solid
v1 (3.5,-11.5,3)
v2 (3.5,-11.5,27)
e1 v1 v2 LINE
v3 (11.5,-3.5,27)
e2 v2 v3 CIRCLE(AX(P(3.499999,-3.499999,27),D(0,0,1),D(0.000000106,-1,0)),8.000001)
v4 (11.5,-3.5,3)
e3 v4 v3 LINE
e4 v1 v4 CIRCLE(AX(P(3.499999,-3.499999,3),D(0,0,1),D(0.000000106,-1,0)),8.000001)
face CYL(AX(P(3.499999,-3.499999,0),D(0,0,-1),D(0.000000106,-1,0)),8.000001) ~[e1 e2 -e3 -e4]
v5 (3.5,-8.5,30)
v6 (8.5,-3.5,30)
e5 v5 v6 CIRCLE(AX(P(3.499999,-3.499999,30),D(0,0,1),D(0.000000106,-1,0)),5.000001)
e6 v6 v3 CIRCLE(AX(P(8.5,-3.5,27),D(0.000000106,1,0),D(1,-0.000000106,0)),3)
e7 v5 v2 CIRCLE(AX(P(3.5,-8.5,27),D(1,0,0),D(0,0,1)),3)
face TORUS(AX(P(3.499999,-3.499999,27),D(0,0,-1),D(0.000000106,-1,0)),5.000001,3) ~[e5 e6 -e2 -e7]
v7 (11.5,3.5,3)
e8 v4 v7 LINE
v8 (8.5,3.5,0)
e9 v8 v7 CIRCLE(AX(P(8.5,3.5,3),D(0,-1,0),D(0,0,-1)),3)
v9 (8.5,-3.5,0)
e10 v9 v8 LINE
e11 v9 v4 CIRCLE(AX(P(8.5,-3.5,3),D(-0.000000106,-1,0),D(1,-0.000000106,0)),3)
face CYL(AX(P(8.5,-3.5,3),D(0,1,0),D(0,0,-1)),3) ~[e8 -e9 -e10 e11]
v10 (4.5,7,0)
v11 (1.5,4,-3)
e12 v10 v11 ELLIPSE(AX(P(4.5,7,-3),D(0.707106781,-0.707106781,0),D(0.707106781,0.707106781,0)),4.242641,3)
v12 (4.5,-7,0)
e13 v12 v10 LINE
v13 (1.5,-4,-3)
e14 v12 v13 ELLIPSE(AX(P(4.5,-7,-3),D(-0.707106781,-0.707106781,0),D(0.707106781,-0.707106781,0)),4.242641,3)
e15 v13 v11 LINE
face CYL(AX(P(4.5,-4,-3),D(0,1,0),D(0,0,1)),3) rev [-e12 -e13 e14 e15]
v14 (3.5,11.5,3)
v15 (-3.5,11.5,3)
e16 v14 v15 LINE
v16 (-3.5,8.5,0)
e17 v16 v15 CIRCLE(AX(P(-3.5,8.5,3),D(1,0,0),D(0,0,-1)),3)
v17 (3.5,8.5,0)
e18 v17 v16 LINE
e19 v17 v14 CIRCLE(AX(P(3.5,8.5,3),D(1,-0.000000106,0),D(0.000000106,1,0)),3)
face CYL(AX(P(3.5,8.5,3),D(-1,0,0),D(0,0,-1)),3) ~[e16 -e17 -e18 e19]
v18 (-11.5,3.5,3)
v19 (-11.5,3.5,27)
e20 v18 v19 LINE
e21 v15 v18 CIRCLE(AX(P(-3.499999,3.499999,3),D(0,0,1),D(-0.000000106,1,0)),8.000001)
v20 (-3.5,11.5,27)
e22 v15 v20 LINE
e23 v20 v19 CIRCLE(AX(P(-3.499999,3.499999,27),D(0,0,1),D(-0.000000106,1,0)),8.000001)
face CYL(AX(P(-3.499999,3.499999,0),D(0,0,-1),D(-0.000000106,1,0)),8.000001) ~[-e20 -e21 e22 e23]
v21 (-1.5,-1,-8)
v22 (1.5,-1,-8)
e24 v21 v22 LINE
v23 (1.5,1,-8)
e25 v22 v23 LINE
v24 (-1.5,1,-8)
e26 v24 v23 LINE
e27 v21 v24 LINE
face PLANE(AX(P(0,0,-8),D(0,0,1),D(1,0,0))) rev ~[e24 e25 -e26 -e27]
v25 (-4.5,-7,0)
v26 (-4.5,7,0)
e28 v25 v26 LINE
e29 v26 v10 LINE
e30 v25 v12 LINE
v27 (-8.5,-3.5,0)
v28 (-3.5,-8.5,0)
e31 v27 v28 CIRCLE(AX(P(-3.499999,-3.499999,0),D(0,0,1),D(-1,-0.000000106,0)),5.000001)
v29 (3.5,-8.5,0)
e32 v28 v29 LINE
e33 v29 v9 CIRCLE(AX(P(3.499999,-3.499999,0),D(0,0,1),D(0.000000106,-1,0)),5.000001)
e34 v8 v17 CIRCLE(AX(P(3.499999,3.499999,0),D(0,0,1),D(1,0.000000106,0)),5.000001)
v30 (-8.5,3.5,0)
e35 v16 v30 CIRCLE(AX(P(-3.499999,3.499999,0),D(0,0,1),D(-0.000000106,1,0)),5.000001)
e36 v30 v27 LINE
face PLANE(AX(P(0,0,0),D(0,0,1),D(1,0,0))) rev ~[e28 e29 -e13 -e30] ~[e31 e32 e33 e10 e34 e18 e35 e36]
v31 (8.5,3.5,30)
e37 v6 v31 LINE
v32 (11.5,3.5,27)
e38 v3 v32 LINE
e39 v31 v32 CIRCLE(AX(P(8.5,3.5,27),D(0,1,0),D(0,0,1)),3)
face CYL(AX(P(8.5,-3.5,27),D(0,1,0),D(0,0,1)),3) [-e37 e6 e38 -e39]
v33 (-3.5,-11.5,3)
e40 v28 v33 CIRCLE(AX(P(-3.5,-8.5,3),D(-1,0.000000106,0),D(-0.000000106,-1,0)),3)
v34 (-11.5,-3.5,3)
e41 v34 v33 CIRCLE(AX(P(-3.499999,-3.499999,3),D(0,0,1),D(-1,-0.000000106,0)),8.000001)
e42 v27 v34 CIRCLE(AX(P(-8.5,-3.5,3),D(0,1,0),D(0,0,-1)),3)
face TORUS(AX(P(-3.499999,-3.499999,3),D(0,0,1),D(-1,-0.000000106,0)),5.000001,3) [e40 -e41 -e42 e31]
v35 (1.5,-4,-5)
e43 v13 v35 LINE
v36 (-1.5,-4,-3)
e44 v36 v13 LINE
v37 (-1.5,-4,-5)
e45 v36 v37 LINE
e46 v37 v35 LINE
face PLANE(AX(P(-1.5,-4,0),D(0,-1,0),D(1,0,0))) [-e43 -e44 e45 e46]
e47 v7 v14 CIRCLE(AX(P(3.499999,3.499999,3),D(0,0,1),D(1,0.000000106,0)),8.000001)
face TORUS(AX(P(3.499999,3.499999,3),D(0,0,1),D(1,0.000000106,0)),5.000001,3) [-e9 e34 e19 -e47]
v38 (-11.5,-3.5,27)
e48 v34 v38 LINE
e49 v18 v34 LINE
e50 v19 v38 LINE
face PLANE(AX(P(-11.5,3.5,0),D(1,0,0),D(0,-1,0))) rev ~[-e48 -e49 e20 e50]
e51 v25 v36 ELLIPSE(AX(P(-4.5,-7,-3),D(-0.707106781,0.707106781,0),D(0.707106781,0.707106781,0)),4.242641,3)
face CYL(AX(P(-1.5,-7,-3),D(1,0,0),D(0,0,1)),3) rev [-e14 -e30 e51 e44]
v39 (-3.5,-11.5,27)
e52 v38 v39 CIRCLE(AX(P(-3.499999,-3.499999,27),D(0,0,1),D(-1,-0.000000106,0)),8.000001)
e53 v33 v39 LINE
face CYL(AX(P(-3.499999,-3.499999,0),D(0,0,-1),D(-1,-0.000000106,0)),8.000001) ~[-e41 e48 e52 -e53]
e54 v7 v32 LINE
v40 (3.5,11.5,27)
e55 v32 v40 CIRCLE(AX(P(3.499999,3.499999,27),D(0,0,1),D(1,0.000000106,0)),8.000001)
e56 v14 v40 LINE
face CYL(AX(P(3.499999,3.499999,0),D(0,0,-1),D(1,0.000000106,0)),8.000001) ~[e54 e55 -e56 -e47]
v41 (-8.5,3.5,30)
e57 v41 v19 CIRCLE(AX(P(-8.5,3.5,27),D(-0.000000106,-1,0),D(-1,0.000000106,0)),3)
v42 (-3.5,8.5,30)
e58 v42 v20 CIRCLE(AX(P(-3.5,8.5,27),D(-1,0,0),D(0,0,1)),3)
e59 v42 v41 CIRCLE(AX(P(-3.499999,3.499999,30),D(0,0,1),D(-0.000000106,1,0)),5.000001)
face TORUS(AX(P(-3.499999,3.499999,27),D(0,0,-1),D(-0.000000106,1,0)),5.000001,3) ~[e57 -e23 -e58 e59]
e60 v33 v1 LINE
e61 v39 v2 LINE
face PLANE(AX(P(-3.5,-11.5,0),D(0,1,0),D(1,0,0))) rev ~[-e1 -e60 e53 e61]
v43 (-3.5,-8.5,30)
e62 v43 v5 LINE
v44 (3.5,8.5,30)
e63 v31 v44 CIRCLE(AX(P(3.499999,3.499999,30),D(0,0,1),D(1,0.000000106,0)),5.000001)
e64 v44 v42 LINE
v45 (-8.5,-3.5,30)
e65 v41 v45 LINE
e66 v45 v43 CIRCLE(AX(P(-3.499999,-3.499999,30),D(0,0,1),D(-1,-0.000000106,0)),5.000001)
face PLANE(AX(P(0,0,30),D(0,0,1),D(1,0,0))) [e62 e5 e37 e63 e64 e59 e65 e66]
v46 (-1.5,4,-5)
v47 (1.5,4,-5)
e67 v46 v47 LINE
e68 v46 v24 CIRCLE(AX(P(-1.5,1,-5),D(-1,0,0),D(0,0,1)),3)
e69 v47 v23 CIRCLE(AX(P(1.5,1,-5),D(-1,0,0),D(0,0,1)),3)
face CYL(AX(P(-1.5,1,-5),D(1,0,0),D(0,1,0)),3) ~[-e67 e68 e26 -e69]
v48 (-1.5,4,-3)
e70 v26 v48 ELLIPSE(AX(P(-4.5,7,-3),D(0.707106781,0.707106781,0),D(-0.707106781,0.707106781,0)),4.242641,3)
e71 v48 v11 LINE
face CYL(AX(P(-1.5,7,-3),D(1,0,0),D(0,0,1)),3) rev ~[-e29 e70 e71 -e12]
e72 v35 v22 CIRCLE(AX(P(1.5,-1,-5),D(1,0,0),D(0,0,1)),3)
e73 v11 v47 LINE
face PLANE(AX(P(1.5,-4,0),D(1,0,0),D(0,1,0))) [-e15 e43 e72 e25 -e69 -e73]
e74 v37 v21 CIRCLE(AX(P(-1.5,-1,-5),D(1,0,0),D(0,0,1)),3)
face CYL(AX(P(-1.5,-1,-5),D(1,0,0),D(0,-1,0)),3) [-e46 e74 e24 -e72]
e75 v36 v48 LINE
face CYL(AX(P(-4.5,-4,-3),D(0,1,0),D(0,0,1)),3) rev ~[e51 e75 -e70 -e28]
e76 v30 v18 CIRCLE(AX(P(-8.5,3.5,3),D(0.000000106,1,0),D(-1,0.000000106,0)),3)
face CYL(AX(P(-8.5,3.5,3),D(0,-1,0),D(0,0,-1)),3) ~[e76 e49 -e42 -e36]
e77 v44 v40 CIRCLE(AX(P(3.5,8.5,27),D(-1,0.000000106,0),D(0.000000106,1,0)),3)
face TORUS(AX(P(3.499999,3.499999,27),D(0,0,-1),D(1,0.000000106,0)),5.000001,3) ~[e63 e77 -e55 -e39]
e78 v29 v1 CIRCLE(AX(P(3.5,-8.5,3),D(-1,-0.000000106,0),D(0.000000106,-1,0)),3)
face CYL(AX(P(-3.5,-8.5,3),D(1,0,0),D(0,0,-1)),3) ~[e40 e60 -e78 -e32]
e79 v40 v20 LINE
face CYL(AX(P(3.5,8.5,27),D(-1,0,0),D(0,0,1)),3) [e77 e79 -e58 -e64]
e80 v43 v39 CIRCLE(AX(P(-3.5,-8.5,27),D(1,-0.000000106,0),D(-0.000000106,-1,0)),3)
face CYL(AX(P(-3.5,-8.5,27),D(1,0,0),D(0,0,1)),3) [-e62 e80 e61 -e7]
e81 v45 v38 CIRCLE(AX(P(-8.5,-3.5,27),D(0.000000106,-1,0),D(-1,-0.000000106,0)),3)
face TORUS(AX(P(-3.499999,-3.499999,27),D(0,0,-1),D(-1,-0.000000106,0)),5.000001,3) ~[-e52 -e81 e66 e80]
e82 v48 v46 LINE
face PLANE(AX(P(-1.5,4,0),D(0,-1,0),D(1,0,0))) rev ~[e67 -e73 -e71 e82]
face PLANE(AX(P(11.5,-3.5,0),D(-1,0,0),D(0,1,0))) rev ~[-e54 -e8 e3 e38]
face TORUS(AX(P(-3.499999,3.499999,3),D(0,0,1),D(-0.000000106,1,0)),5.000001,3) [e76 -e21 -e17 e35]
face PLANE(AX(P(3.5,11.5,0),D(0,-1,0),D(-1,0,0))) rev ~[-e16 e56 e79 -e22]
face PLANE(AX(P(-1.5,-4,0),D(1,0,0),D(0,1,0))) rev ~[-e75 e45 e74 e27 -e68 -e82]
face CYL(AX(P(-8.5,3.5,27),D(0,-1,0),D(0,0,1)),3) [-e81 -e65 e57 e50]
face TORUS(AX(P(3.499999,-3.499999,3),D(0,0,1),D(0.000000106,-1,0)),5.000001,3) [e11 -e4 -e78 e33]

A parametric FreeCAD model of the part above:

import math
import FreeCAD as App
import Part
import Sketcher


def edges_at(feature, points):
    """Names of the edges that pass closest to the given points."""
    edges = feature.Shape.Edges
    near = lambda p: min(range(len(edges)), key=lambda i: edges[i].distToShape(Part.Vertex(*p))[0])
    return sorted({f"Edge{near(p) + 1}" for p in points})

doc = App.newDocument("Part")
body = doc.addObject("PartDesign::Body", "Body")

sketch1 = doc.addObject("Sketcher::SketchObject", "Sketch")
body.addObject(sketch1)
sketch1.AttachmentSupport = (doc.XY_Plane, [""])
sketch1.MapMode = "FlatFace"
sketch1.addGeometry([
    Part.ArcOfCircle(Part.Circle(App.Vector(3, 3, 0), App.Vector(0, 0, 1), 8), math.radians(0), math.radians(90)),
    Part.LineSegment(App.Vector(4, 12, 0), App.Vector(-4, 12, 0)),
    Part.ArcOfCircle(Part.Circle(App.Vector(-3, 3, 0), App.Vector(0, 0, 1), 8), math.radians(90), math.radians(180)),
    Part.LineSegment(App.Vector(-12, 4, 0), App.Vector(-12, -4, 0)),
    Part.ArcOfCircle(Part.Circle(App.Vector(-3, -3, 0), App.Vector(0, 0, 1), 8), math.radians(-180), math.radians(-90)),
    Part.LineSegment(App.Vector(-4, -12, 0), App.Vector(4, -12, 0)),
    Part.ArcOfCircle(Part.Circle(App.Vector(3, -3, 0), App.Vector(0, 0, 1), 8), math.radians(-90), math.radians(0)),
    Part.LineSegment(App.Vector(12, -4, 0), App.Vector(12, 4, 0)),
], False)
sketch1.addConstraint([
    Sketcher.Constraint("Tangent", 0, 2, 1, 1),
    Sketcher.Constraint("Tangent", 1, 2, 2, 1),
    Sketcher.Constraint("Tangent", 2, 2, 3, 1),
    Sketcher.Constraint("Tangent", 3, 2, 4, 1),
    Sketcher.Constraint("Tangent", 4, 2, 5, 1),
    Sketcher.Constraint("Tangent", 5, 2, 6, 1),
    Sketcher.Constraint("Tangent", 6, 2, 7, 1),
    Sketcher.Constraint("Tangent", 7, 2, 0, 1),
    Sketcher.Constraint("Horizontal", 1),
    Sketcher.Constraint("Vertical", 3),
    Sketcher.Constraint("Horizontal", 5),
    Sketcher.Constraint("Vertical", 7),
    Sketcher.Constraint("Equal", 0, 2),
    Sketcher.Constraint("Equal", 2, 4),
    Sketcher.Constraint("Equal", 4, 6),
    Sketcher.Constraint("Symmetric", 0, 3, 4, 3, -1, 1),
    Sketcher.Constraint("Equal", 5, 3),
    Sketcher.Constraint("Radius", 0, 8.000001),
    Sketcher.Constraint("DistanceX", 1, 2, 1, 1, 7.0),
])
pad1 = doc.addObject("PartDesign::Pad", "Pad")
body.addObject(pad1)
pad1.Profile = sketch1
pad1.Length = 30

sketch2 = doc.addObject("Sketcher::SketchObject", "Sketch001")
body.addObject(sketch2)
sketch2.AttachmentSupport = (doc.XY_Plane, [""])
sketch2.MapMode = "FlatFace"
sketch2.addGeometry([
    Part.LineSegment(App.Vector(-1.5, 4, 0), App.Vector(-1.5, -4, 0)),
    Part.LineSegment(App.Vector(-1.5, -4, 0), App.Vector(1.5, -4, 0)),
    Part.LineSegment(App.Vector(1.5, -4, 0), App.Vector(1.5, 4, 0)),
    Part.LineSegment(App.Vector(1.5, 4, 0), App.Vector(-1.5, 4, 0)),
], False)
sketch2.addConstraint([
    Sketcher.Constraint("Coincident", 0, 2, 1, 1),
    Sketcher.Constraint("Coincident", 1, 2, 2, 1),
    Sketcher.Constraint("Coincident", 2, 2, 3, 1),
    Sketcher.Constraint("Coincident", 3, 2, 0, 1),
    Sketcher.Constraint("Vertical", 0),
    Sketcher.Constraint("Horizontal", 1),
    Sketcher.Constraint("Vertical", 2),
    Sketcher.Constraint("Horizontal", 3),
    Sketcher.Constraint("Symmetric", 0, 2, 2, 2, -1, 1),
    Sketcher.Constraint("DistanceX", 1, 1, 1, 2, 3.0),
    Sketcher.Constraint("DistanceY", 0, 2, 0, 1, 8.0),
])
pad2 = doc.addObject("PartDesign::Pad", "Pad001")
body.addObject(pad2)
pad2.Profile = sketch2
pad2.Length = 8
pad2.Reversed = True
doc.recompute()

fillet = doc.addObject("PartDesign::Fillet", "Fillet")
body.addObject(fillet)
fillet.Base = (pad2, edges_at(pad2, [
    (-9.157, -9.157, 30),
    (9.157, -9.157, 0),
    (-1.5, 0, 0),
    (0, -4, 0),
    (1.5, 0, 0),
    (0, 4, 0),
    (0, 4, -8),
    (0, -4, -8),
]))
fillet.Radius = 3

doc.recompute()
